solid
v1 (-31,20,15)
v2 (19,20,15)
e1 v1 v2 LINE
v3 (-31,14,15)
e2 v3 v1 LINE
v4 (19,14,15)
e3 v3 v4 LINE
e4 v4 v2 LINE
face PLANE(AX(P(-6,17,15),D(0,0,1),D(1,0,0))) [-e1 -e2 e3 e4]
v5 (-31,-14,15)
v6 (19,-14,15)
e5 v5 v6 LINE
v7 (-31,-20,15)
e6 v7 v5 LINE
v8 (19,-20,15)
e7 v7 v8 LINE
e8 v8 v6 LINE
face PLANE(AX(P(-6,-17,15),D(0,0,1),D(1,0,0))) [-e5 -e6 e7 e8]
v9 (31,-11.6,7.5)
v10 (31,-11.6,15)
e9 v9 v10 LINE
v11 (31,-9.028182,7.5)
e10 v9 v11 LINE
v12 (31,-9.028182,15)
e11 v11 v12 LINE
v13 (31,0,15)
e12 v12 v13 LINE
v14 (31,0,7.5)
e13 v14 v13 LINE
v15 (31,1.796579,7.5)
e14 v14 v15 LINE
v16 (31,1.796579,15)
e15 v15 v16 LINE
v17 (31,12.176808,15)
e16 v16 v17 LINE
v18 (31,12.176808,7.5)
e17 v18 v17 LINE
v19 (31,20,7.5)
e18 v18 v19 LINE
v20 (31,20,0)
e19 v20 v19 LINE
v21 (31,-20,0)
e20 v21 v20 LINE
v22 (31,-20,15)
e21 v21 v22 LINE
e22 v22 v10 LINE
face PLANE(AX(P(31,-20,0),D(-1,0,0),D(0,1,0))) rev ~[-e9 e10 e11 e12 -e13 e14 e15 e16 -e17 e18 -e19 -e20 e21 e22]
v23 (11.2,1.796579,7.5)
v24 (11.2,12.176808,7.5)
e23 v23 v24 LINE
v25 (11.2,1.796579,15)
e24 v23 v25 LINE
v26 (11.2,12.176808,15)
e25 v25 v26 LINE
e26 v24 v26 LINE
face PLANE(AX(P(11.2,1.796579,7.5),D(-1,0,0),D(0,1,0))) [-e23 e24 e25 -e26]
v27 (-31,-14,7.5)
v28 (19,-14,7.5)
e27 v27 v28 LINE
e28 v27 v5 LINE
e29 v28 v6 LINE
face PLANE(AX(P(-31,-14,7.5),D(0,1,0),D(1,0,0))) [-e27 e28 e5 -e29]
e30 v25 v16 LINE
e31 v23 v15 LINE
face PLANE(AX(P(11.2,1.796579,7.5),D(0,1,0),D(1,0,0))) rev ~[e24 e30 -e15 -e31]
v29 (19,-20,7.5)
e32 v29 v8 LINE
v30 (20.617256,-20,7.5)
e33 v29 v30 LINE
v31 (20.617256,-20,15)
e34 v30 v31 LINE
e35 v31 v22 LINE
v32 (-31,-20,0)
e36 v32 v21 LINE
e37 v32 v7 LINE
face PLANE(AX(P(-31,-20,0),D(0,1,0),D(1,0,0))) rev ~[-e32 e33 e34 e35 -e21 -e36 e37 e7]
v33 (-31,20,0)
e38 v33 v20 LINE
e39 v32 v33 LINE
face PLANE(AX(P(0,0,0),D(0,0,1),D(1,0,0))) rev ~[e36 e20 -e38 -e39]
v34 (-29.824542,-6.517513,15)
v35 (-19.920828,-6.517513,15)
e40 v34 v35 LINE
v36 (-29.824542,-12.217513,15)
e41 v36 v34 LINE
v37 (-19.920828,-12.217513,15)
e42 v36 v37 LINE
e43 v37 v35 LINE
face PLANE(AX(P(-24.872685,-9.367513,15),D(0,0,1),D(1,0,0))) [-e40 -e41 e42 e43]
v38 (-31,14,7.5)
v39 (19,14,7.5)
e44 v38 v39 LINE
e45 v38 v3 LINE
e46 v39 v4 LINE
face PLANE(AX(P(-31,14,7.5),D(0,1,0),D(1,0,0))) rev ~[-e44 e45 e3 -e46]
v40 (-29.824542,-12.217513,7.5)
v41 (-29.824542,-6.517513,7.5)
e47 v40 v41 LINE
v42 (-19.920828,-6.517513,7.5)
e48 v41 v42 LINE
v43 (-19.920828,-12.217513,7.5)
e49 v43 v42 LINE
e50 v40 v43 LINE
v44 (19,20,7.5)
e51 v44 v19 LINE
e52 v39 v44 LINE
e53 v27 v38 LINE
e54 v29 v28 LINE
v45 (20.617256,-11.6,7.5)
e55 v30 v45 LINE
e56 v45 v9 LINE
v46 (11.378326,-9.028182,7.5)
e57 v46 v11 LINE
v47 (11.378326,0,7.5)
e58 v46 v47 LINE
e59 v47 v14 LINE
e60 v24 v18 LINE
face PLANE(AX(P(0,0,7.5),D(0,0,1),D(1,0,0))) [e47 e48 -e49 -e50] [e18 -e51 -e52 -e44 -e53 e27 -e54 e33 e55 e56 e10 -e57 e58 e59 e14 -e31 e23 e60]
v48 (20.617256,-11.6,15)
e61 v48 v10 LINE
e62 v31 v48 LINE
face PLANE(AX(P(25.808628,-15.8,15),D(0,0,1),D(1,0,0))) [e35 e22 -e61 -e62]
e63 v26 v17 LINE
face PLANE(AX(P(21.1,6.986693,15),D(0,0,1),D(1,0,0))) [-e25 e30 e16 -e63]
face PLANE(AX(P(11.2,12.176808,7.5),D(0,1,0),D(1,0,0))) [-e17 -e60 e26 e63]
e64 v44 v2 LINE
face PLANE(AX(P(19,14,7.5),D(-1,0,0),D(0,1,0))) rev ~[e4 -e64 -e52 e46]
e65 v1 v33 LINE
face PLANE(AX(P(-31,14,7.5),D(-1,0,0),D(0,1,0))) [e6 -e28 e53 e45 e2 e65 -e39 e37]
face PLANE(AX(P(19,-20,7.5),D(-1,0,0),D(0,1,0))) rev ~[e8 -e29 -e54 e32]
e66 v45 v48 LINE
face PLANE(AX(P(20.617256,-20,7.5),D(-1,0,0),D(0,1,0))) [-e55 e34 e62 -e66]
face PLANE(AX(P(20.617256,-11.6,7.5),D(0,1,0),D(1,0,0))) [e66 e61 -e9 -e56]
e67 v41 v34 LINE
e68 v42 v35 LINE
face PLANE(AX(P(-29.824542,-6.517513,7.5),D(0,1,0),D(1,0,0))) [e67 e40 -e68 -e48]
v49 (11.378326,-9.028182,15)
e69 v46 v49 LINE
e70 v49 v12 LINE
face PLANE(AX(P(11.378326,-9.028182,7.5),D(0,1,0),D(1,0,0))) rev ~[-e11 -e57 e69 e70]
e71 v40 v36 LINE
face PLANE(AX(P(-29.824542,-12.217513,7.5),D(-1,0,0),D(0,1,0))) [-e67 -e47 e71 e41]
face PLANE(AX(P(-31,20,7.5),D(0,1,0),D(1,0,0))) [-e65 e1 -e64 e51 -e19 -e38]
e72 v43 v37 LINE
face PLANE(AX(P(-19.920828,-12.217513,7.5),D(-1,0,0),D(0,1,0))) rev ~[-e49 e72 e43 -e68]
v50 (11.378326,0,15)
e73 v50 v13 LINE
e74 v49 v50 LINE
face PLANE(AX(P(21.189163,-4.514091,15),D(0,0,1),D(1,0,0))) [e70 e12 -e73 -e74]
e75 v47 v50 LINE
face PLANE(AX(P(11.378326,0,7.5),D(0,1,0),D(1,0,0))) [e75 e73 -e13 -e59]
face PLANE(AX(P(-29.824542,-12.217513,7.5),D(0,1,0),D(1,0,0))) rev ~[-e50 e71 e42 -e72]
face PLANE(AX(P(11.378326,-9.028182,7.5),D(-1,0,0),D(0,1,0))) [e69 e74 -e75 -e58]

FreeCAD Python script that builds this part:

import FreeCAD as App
import Part
import Sketcher
from FreeCAD import Vector
Q = App.Units.Quantity


def add_polygon(sketch, points):
    """Adds a closed chain of lines whose ends are joined by coincident constraints."""
    first, n = sketch.GeometryCount, len(points)
    for a, b in zip(points, points[1:] + points[:1]):
        sketch.addGeometry(Part.LineSegment(App.Vector(*a, 0), App.Vector(*b, 0)), False)
    for i in range(n):
        sketch.addConstraint(Sketcher.Constraint("Coincident", first + i, 2, first + (i + 1) % n, 1))

doc = App.newDocument("Part")
body = doc.addObject("PartDesign::Body", "Body")

sketch1 = body.newObject("Sketcher::SketchObject", "Sketch")
sketch1.AttachmentSupport = (doc.getObject("XY_Plane"), [""])
sketch1.MapMode = "FlatFace"
add_polygon(sketch1, [(-31, 20), (-31, -20), (31, -20), (31, 20)])
sketch1.addConstraint(Sketcher.Constraint("Vertical", 0))
sketch1.addConstraint(Sketcher.Constraint("Horizontal", 1))
sketch1.addConstraint(Sketcher.Constraint("Vertical", 2))
sketch1.addConstraint(Sketcher.Constraint("Horizontal", 3))
sketch1.addConstraint(Sketcher.Constraint("Symmetric", 0, 2, 2, 2, -1, 1))
sketch1.addConstraint(Sketcher.Constraint("DistanceX", 1, 1, 1, 2, Q("62 mm")))
sketch1.addConstraint(Sketcher.Constraint("DistanceY", 0, 2, 0, 1, Q("40 mm")))
pad1 = body.newObject("PartDesign::Pad", "Pad")
pad1.Profile = sketch1
pad1.Length = 7.5

sketch2 = body.newObject("Sketcher::SketchObject", "Sketch001")
sketch2.AttachmentSupport = (doc.getObject("XY_Plane"), [""])
sketch2.MapMode = "FlatFace"
sketch2.AttachmentOffset = App.Placement(Vector(0, 0, 7.5), App.Rotation())
add_polygon(sketch2, [(-31, 20), (-31, 14), (19, 14), (19, 20)])
add_polygon(sketch2, [(-31, -14), (-31, -20), (19, -20), (19, -14)])
add_polygon(sketch2, [(11, 12), (11, 2), (31, 2), (31, 12)])
add_polygon(sketch2, [(11, 0), (11, -9), (31, -9), (31, 0)])
add_polygon(sketch2, [(21, -12), (21, -20), (31, -20), (31, -12)])
add_polygon(sketch2, [(-30, -7), (-30, -12), (-20, -12), (-20, -7)])
sketch2.addConstraint(Sketcher.Constraint("Vertical", 0))
sketch2.addConstraint(Sketcher.Constraint("Horizontal", 1))
sketch2.addConstraint(Sketcher.Constraint("Vertical", 2))
sketch2.addConstraint(Sketcher.Constraint("Horizontal", 3))
sketch2.addConstraint(Sketcher.Constraint("Vertical", 4))
sketch2.addConstraint(Sketcher.Constraint("Horizontal", 5))
sketch2.addConstraint(Sketcher.Constraint("Vertical", 6))
sketch2.addConstraint(Sketcher.Constraint("Horizontal", 7))
sketch2.addConstraint(Sketcher.Constraint("Vertical", 8))
sketch2.addConstraint(Sketcher.Constraint("Horizontal", 9))
sketch2.addConstraint(Sketcher.Constraint("Vertical", 10))
sketch2.addConstraint(Sketcher.Constraint("Horizontal", 11))
sketch2.addConstraint(Sketcher.Constraint("Vertical", 12))
sketch2.addConstraint(Sketcher.Constraint("Horizontal", 13))
sketch2.addConstraint(Sketcher.Constraint("Vertical", 14))
sketch2.addConstraint(Sketcher.Constraint("Horizontal", 15))
sketch2.addConstraint(Sketcher.Constraint("Vertical", 16))
sketch2.addConstraint(Sketcher.Constraint("Horizontal", 17))
sketch2.addConstraint(Sketcher.Constraint("Vertical", 18))
sketch2.addConstraint(Sketcher.Constraint("Horizontal", 19))
sketch2.addConstraint(Sketcher.Constraint("Vertical", 20))
sketch2.addConstraint(Sketcher.Constraint("Horizontal", 21))
sketch2.addConstraint(Sketcher.Constraint("Vertical", 22))
sketch2.addConstraint(Sketcher.Constraint("Horizontal", 23))
sketch2.addConstraint(Sketcher.Constraint("Symmetric", 3, 2, 17, 2, -1, 1))
sketch2.addConstraint(Sketcher.Constraint("Symmetric", 4, 2, 17, 2, -2))
sketch2.addConstraint(Sketcher.Constraint("Symmetric", 1, 2, 6, 2, -1))
sketch2.addConstraint(Sketcher.Constraint("PointOnObject", 14, 2, -1))
sketch2.addConstraint(Sketcher.Constraint("Vertical", 10, 2, 13, 2))
sketch2.addConstraint(Sketcher.Constraint("Vertical", 14, 2, 17, 2))
sketch2.addConstraint(Sketcher.Constraint("DistanceX", 1, 1, 1, 2, Q("50 mm")))
sketch2.addConstraint(Sketcher.Constraint("DistanceY", 0, 2, 0, 1, Q("6 mm")))
sketch2.addConstraint(Sketcher.Constraint("DistanceX", 9, 1, 9, 2, Q("19.8 mm")))
sketch2.addConstraint(Sketcher.Constraint("DistanceY", 16, 2, 16, 1, Q("8.4 mm")))
sketch2.addConstraint(Sketcher.Constraint("DistanceY", 20, 2, 20, 1, Q("5.7 mm")))
sketch2.addConstraint(Sketcher.Constraint("DistanceX", 0, 2, -1, 1, Q("31 mm")))
sketch2.addConstraint(Sketcher.Constraint("DistanceY", -1, 1, 0, 2, Q("14 mm")))
sketch2.addConstraint(Sketcher.Constraint("DistanceY", 8, 2, 8, 1, Q("10.380229 mm")))
sketch2.addConstraint(Sketcher.Constraint("DistanceY", 12, 2, 12, 1, Q("9.028182 mm")))
sketch2.addConstraint(Sketcher.Constraint("DistanceX", 13, 1, 13, 2, Q("19.621674 mm")))
sketch2.addConstraint(Sketcher.Constraint("DistanceX", 17, 1, 17, 2, Q("10.382744 mm")))
sketch2.addConstraint(Sketcher.Constraint("DistanceX", 21, 1, 21, 2, Q("9.903714 mm")))
sketch2.addConstraint(Sketcher.Constraint("DistanceY", -1, 1, 8, 2, Q("1.796579 mm")))
sketch2.addConstraint(Sketcher.Constraint("DistanceX", 21, 2, -1, 1, Q("19.920828 mm")))
sketch2.addConstraint(Sketcher.Constraint("DistanceY", 20, 2, 12, 2, Q("3.189331 mm")))
pad2 = body.newObject("PartDesign::Pad", "Pad001")
pad2.Profile = sketch2
pad2.Length = 7.5

doc.recompute()
